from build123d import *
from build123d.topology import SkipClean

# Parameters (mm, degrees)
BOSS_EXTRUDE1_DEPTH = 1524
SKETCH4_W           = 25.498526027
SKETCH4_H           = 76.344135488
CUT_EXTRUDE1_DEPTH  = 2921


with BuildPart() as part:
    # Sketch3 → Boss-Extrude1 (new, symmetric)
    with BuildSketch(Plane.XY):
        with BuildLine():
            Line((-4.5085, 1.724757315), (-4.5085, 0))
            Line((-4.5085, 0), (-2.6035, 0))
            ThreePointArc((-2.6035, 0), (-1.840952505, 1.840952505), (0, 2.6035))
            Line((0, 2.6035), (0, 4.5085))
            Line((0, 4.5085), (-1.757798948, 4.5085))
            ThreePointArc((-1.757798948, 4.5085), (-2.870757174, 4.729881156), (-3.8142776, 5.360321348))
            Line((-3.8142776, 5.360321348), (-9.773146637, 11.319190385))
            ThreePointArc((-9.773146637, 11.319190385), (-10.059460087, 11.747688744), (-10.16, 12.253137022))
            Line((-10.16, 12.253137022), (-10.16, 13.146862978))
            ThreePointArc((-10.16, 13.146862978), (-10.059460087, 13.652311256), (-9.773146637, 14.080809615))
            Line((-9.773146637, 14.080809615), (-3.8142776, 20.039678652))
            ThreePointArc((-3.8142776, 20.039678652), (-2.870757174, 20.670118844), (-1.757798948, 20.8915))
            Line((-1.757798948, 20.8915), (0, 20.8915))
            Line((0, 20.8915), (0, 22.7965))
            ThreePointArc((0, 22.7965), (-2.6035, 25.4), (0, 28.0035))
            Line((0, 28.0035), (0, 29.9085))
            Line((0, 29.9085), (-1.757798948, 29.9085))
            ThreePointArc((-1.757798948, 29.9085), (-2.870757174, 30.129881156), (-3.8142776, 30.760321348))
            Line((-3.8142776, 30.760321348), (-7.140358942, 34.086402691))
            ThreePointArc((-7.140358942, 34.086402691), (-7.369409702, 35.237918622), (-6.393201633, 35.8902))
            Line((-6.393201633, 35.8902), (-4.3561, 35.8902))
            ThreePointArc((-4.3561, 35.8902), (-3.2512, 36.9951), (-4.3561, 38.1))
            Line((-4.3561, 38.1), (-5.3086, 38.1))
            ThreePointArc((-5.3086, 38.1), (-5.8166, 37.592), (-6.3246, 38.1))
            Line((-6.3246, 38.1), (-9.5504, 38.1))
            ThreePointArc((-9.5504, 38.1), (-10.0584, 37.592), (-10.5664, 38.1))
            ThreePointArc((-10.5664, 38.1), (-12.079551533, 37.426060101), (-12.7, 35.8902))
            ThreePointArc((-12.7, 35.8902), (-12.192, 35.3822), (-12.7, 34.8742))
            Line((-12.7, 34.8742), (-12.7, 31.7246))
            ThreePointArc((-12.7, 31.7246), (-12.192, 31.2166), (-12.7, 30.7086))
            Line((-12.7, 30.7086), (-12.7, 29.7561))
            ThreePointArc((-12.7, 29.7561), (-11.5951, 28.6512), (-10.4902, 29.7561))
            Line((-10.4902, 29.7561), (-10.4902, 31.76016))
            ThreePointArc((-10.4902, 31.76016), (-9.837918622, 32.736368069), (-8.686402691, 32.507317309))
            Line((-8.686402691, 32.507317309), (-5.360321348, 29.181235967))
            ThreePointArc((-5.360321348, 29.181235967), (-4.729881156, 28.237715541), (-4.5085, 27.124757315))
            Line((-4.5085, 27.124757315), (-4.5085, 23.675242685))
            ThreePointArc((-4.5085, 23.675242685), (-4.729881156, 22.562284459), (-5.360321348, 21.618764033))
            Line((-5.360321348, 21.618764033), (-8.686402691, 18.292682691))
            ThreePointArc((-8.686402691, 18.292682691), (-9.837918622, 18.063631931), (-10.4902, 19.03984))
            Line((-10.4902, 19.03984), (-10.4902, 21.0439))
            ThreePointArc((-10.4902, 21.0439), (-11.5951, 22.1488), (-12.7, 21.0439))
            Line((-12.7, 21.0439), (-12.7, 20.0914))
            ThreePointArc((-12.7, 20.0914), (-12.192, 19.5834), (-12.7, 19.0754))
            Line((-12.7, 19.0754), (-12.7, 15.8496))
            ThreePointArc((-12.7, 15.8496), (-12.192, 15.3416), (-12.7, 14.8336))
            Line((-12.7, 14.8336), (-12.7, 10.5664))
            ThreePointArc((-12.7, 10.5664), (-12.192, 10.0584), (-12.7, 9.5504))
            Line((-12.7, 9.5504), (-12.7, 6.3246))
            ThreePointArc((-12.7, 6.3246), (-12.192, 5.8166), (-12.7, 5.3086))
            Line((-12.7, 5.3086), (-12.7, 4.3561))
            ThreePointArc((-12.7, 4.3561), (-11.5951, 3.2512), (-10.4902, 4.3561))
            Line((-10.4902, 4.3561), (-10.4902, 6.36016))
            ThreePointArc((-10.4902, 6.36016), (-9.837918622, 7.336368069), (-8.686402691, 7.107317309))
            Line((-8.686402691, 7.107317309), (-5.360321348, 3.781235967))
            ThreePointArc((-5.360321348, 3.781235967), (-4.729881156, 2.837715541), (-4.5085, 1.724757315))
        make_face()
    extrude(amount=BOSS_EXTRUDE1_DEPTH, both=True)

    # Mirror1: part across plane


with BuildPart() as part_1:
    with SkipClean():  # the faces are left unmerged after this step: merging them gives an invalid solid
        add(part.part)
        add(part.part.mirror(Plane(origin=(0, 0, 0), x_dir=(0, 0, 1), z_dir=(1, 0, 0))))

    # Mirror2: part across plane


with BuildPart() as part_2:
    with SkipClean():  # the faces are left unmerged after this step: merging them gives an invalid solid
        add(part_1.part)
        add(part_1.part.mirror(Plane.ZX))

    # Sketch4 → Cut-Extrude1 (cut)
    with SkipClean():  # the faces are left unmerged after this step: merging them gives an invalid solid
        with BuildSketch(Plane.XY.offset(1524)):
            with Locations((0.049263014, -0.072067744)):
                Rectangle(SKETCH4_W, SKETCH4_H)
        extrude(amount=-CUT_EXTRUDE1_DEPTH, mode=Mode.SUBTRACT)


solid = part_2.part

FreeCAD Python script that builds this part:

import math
import FreeCAD as App
import Part
import Sketcher
Q = App.Units.Quantity


def add_polygon(sketch, points):
    """Adds a closed chain of lines whose ends are joined by coincident constraints."""
    first, n = sketch.GeometryCount, len(points)
    for a, b in zip(points, points[1:] + points[:1]):
        sketch.addGeometry(Part.LineSegment(App.Vector(*a, 0), App.Vector(*b, 0)), False)
    for i in range(n):
        sketch.addConstraint(Sketcher.Constraint("Coincident", first + i, 2, first + (i + 1) % n, 1))

doc = App.newDocument("Part")
body = doc.addObject("PartDesign::Body", "Body")

sketch1 = body.newObject("Sketcher::SketchObject", "Sketch")
sketch1.AttachmentSupport = (doc.getObject("XY_Plane"), [""])
sketch1.MapMode = "FlatFace"
sketch1.addGeometry([
    Part.LineSegment(App.Vector(-4.5, 1.7, 0), App.Vector(-4.5, 0, 0)),
    Part.LineSegment(App.Vector(-4.5, 0, 0), App.Vector(-2.6, 0, 0)),
    Part.ArcOfCircle(Part.Circle(App.Vector(0, 0, 0), App.Vector(0, 0, 1), 2.6), math.radians(90), math.radians(180)),
    Part.LineSegment(App.Vector(0, 2.6, 0), App.Vector(0, 4.5, 0)),
    Part.LineSegment(App.Vector(0, 4.5, 0), App.Vector(-1.8, 4.5, 0)),
    Part.ArcOfCircle(Part.Circle(App.Vector(-1.8, 7.4, 0), App.Vector(0, 0, 1), 2.9), math.radians(-135), math.radians(-90)),
    Part.LineSegment(App.Vector(-3.8, 5.4, 0), App.Vector(-9.8, 11.3, 0)),
    Part.ArcOfCircle(Part.Circle(App.Vector(-8.8, 12.3, 0), App.Vector(0, 0, 1), 1.3), math.radians(180), math.radians(225)),
    Part.LineSegment(App.Vector(-10.2, 12.3, 0), App.Vector(-10.2, 13.1, 0)),
    Part.ArcOfCircle(Part.Circle(App.Vector(-8.8, 13.1, 0), App.Vector(0, 0, 1), 1.3), math.radians(135), math.radians(180)),
    Part.LineSegment(App.Vector(-9.8, 14.1, 0), App.Vector(-3.8, 20, 0)),
    Part.ArcOfCircle(Part.Circle(App.Vector(-1.8, 18, 0), App.Vector(0, 0, 1), 2.9), math.radians(90), math.radians(135)),
    Part.LineSegment(App.Vector(-1.8, 20.9, 0), App.Vector(0, 20.9, 0)),
    Part.LineSegment(App.Vector(0, 20.9, 0), App.Vector(0, 22.8, 0)),
    Part.ArcOfCircle(Part.Circle(App.Vector(0, 25.4, 0), App.Vector(0, 0, 1), 2.6), math.radians(90), math.radians(270)),
    Part.LineSegment(App.Vector(0, 28, 0), App.Vector(0, 29.9, 0)),
    Part.LineSegment(App.Vector(0, 29.9, 0), App.Vector(-1.8, 29.9, 0)),
    Part.ArcOfCircle(Part.Circle(App.Vector(-1.8, 32.8, 0), App.Vector(0, 0, 1), 2.9), math.radians(-135), math.radians(-90)),
    Part.LineSegment(App.Vector(-3.8, 30.8, 0), App.Vector(-7.1, 34.1, 0)),
    Part.ArcOfCircle(Part.Circle(App.Vector(-6.4, 34.8, 0), App.Vector(0, 0, 1), 1.1), math.radians(90), math.radians(225)),
    Part.LineSegment(App.Vector(-6.4, 35.9, 0), App.Vector(-4.4, 35.9, 0)),
    Part.ArcOfCircle(Part.Circle(App.Vector(-4.4, 37, 0), App.Vector(0, 0, 1), 1.1), math.radians(-90), math.radians(90)),
    Part.LineSegment(App.Vector(-4.4, 38.1, 0), App.Vector(-5.3, 38.1, 0)),
    Part.ArcOfCircle(Part.Circle(App.Vector(-5.8, 38.1, 0), App.Vector(0, 0, 1), 0.5), math.radians(180), math.radians(360)),
    Part.LineSegment(App.Vector(-6.3, 38.1, 0), App.Vector(-9.6, 38.1, 0)),
    Part.ArcOfCircle(Part.Circle(App.Vector(-10.1, 38.1, 0), App.Vector(0, 0, 1), 0.5), math.radians(180), math.radians(360)),
    Part.ArcOfCircle(Part.Circle(App.Vector(-10.5, 35.9, 0), App.Vector(0, 0, 1), 2.2), math.radians(92), math.radians(180)),
    Part.ArcOfCircle(Part.Circle(App.Vector(-12.7, 35.4, 0), App.Vector(0, 0, 1), 0.5), math.radians(-90), math.radians(90)),
    Part.LineSegment(App.Vector(-12.7, 34.9, 0), App.Vector(-12.7, 31.7, 0)),
    Part.ArcOfCircle(Part.Circle(App.Vector(-12.7, 31.2, 0), App.Vector(0, 0, 1), 0.5), math.radians(-90), math.radians(90)),
    Part.LineSegment(App.Vector(-12.7, 30.7, 0), App.Vector(-12.7, 29.8, 0)),
    Part.ArcOfCircle(Part.Circle(App.Vector(-11.6, 29.8, 0), App.Vector(0, 0, 1), 1.1), math.radians(180), math.radians(360)),
    Part.LineSegment(App.Vector(-10.5, 29.8, 0), App.Vector(-10.5, 31.8, 0)),
    Part.ArcOfCircle(Part.Circle(App.Vector(-9.4, 31.8, 0), App.Vector(0, 0, 1), 1.1), math.radians(45), math.radians(180)),
    Part.LineSegment(App.Vector(-8.7, 32.5, 0), App.Vector(-5.4, 29.2, 0)),
    Part.ArcOfCircle(Part.Circle(App.Vector(-7.4, 27.1, 0), App.Vector(0, 0, 1), 2.9), math.radians(0), math.radians(45)),
    Part.LineSegment(App.Vector(-4.5, 27.1, 0), App.Vector(-4.5, 23.7, 0)),
    Part.ArcOfCircle(Part.Circle(App.Vector(-7.4, 23.7, 0), App.Vector(0, 0, 1), 2.9), math.radians(-45), math.radians(0)),
    Part.LineSegment(App.Vector(-5.4, 21.6, 0), App.Vector(-8.7, 18.3, 0)),
    Part.ArcOfCircle(Part.Circle(App.Vector(-9.4, 19, 0), App.Vector(0, 0, 1), 1.1), math.radians(180), math.radians(315)),
    Part.LineSegment(App.Vector(-10.5, 19, 0), App.Vector(-10.5, 21, 0)),
    Part.ArcOfCircle(Part.Circle(App.Vector(-11.6, 21, 0), App.Vector(0, 0, 1), 1.1), math.radians(0), math.radians(180)),
    Part.LineSegment(App.Vector(-12.7, 21, 0), App.Vector(-12.7, 20.1, 0)),
    Part.ArcOfCircle(Part.Circle(App.Vector(-12.7, 19.6, 0), App.Vector(0, 0, 1), 0.5), math.radians(-90), math.radians(90)),
    Part.LineSegment(App.Vector(-12.7, 19.1, 0), App.Vector(-12.7, 15.8, 0)),
    Part.ArcOfCircle(Part.Circle(App.Vector(-12.7, 15.3, 0), App.Vector(0, 0, 1), 0.5), math.radians(-90), math.radians(90)),
    Part.LineSegment(App.Vector(-12.7, 14.8, 0), App.Vector(-12.7, 10.6, 0)),
    Part.ArcOfCircle(Part.Circle(App.Vector(-12.7, 10.1, 0), App.Vector(0, 0, 1), 0.5), math.radians(-90), math.radians(90)),
    Part.LineSegment(App.Vector(-12.7, 9.6, 0), App.Vector(-12.7, 6.3, 0)),
    Part.ArcOfCircle(Part.Circle(App.Vector(-12.7, 5.8, 0), App.Vector(0, 0, 1), 0.5), math.radians(-90), math.radians(90)),
    Part.LineSegment(App.Vector(-12.7, 5.3, 0), App.Vector(-12.7, 4.4, 0)),
    Part.ArcOfCircle(Part.Circle(App.Vector(-11.6, 4.4, 0), App.Vector(0, 0, 1), 1.1), math.radians(180), math.radians(360)),
    Part.LineSegment(App.Vector(-10.5, 4.4, 0), App.Vector(-10.5, 6.4, 0)),
    Part.ArcOfCircle(Part.Circle(App.Vector(-9.4, 6.4, 0), App.Vector(0, 0, 1), 1.1), math.radians(45), math.radians(180)),
    Part.LineSegment(App.Vector(-8.7, 7.1, 0), App.Vector(-5.4, 3.8, 0)),
    Part.ArcOfCircle(Part.Circle(App.Vector(-7.4, 1.7, 0), App.Vector(0, 0, 1), 2.9), math.radians(0), math.radians(45)),
], False)
sketch1.addConstraint([
    Sketcher.Constraint("Coincident", 0, 2, 1, 1),
    Sketcher.Constraint("Coincident", 1, 2, 2, 2),
    Sketcher.Constraint("Coincident", 2, 1, 3, 1),
    Sketcher.Constraint("Coincident", 3, 2, 4, 1),
    Sketcher.Constraint("Tangent", 4, 2, 5, 2),
    Sketcher.Constraint("Tangent", 5, 1, 6, 1),
    Sketcher.Constraint("Tangent", 6, 2, 7, 2),
    Sketcher.Constraint("Tangent", 7, 1, 8, 1),
    Sketcher.Constraint("Tangent", 8, 2, 9, 2),
    Sketcher.Constraint("Tangent", 9, 1, 10, 1),
    Sketcher.Constraint("Tangent", 10, 2, 11, 2),
    Sketcher.Constraint("Tangent", 11, 1, 12, 1),
    Sketcher.Constraint("Coincident", 12, 2, 13, 1),
    Sketcher.Constraint("Coincident", 13, 2, 14, 2),
    Sketcher.Constraint("Coincident", 14, 1, 15, 1),
    Sketcher.Constraint("Coincident", 15, 2, 16, 1),
    Sketcher.Constraint("Tangent", 16, 2, 17, 2),
    Sketcher.Constraint("Tangent", 17, 1, 18, 1),
    Sketcher.Constraint("Tangent", 18, 2, 19, 2),
    Sketcher.Constraint("Tangent", 19, 1, 20, 1),
    Sketcher.Constraint("Tangent", 20, 2, 21, 1),
    Sketcher.Constraint("Tangent", 21, 2, 22, 1),
    Sketcher.Constraint("Coincident", 22, 2, 23, 2),
    Sketcher.Constraint("Coincident", 23, 1, 24, 1),
    Sketcher.Constraint("Coincident", 24, 2, 25, 2),
    Sketcher.Constraint("Coincident", 25, 1, 26, 1),
    Sketcher.Constraint("Coincident", 26, 2, 27, 2),
    Sketcher.Constraint("Coincident", 27, 1, 28, 1),
    Sketcher.Constraint("Coincident", 28, 2, 29, 2),
    Sketcher.Constraint("Coincident", 29, 1, 30, 1),
    Sketcher.Constraint("Tangent", 30, 2, 31, 1),
    Sketcher.Constraint("Tangent", 31, 2, 32, 1),
    Sketcher.Constraint("Tangent", 32, 2, 33, 2),
    Sketcher.Constraint("Tangent", 33, 1, 34, 1),
    Sketcher.Constraint("Tangent", 34, 2, 35, 2),
    Sketcher.Constraint("Tangent", 35, 1, 36, 1),
    Sketcher.Constraint("Tangent", 36, 2, 37, 2),
    Sketcher.Constraint("Tangent", 37, 1, 38, 1),
    Sketcher.Constraint("Tangent", 38, 2, 39, 2),
    Sketcher.Constraint("Tangent", 39, 1, 40, 1),
    Sketcher.Constraint("Tangent", 40, 2, 41, 1),
    Sketcher.Constraint("Tangent", 41, 2, 42, 1),
    Sketcher.Constraint("Coincident", 42, 2, 43, 2),
    Sketcher.Constraint("Coincident", 43, 1, 44, 1),
    Sketcher.Constraint("Coincident", 44, 2, 45, 2),
    Sketcher.Constraint("Coincident", 45, 1, 46, 1),
    Sketcher.Constraint("Coincident", 46, 2, 47, 2),
    Sketcher.Constraint("Coincident", 47, 1, 48, 1),
    Sketcher.Constraint("Coincident", 48, 2, 49, 2),
    Sketcher.Constraint("Coincident", 49, 1, 50, 1),
    Sketcher.Constraint("Tangent", 50, 2, 51, 1),
    Sketcher.Constraint("Tangent", 51, 2, 52, 1),
    Sketcher.Constraint("Tangent", 52, 2, 53, 2),
    Sketcher.Constraint("Tangent", 53, 1, 54, 1),
    Sketcher.Constraint("Tangent", 54, 2, 55, 2),
    Sketcher.Constraint("Tangent", 55, 1, 0, 1),
    Sketcher.Constraint("Vertical", 0),
    Sketcher.Constraint("Horizontal", 1),
    Sketcher.Constraint("Vertical", 3),
    Sketcher.Constraint("Horizontal", 4),
    Sketcher.Constraint("Vertical", 8),
    Sketcher.Constraint("Horizontal", 12),
    Sketcher.Constraint("Vertical", 13),
    Sketcher.Constraint("Vertical", 15),
    Sketcher.Constraint("Horizontal", 16),
    Sketcher.Constraint("Horizontal", 20),
    Sketcher.Constraint("Horizontal", 22),
    Sketcher.Constraint("Horizontal", 24),
    Sketcher.Constraint("Vertical", 28),
    Sketcher.Constraint("Vertical", 30),
    Sketcher.Constraint("Vertical", 32),
    Sketcher.Constraint("Vertical", 36),
    Sketcher.Constraint("Vertical", 40),
    Sketcher.Constraint("Vertical", 42),
    Sketcher.Constraint("Vertical", 44),
    Sketcher.Constraint("Vertical", 46),
    Sketcher.Constraint("Vertical", 48),
    Sketcher.Constraint("Vertical", 50),
    Sketcher.Constraint("Vertical", 52),
    Sketcher.Constraint("Coincident", 2, 3, -1, 1),
    Sketcher.Constraint("Equal", 7, 9),
    Sketcher.Constraint("Equal", 5, 11),
    Sketcher.Constraint("Equal", 2, 14),
    Sketcher.Constraint("Equal", 11, 17),
    Sketcher.Constraint("Equal", 23, 25),
    Sketcher.Constraint("Equal", 25, 27),
    Sketcher.Constraint("Equal", 27, 29),
    Sketcher.Constraint("Equal", 21, 31),
    Sketcher.Constraint("Equal", 19, 33),
    Sketcher.Constraint("Equal", 17, 35),
    Sketcher.Constraint("Equal", 35, 37),
    Sketcher.Constraint("Equal", 33, 39),
    Sketcher.Constraint("Equal", 31, 41),
    Sketcher.Constraint("Equal", 29, 43),
    Sketcher.Constraint("Equal", 43, 45),
    Sketcher.Constraint("Equal", 45, 47),
    Sketcher.Constraint("Equal", 47, 49),
    Sketcher.Constraint("Equal", 41, 51),
    Sketcher.Constraint("Equal", 39, 53),
    Sketcher.Constraint("Equal", 37, 55),
    Sketcher.Constraint("PointOnObject", 14, 3, -2),
    Sketcher.Constraint("PointOnObject", 0, 2, -1),
    Sketcher.Constraint("PointOnObject", 2, 1, -2),
    Sketcher.Constraint("PointOnObject", 12, 2, -2),
    Sketcher.Constraint("PointOnObject", 14, 1, -2),
    Sketcher.Constraint("Perpendicular", 6, 10),
    Sketcher.Constraint("Perpendicular", 10, 18),
    Sketcher.Constraint("Parallel", 18, 34),
    Sketcher.Constraint("Perpendicular", 34, 38),
    Sketcher.Constraint("Perpendicular", 38, 54),
    Sketcher.Constraint("Horizontal", 23, 3, 25, 3),
    Sketcher.Constraint("Horizontal", 26, 3, 19, 1),
    Sketcher.Constraint("Horizontal", 25, 3, 21, 2),
    Sketcher.Constraint("Horizontal", 22, 2, 23, 1),
    Sketcher.Constraint("Horizontal", 24, 2, 25, 1),
    Sketcher.Constraint("Horizontal", 20, 2, 26, 2),
    Sketcher.Constraint("Vertical", 5, 3, 11, 3),
    Sketcher.Constraint("Vertical", 11, 3, 17, 3),
    Sketcher.Constraint("Vertical", 27, 3, 29, 3),
    Sketcher.Constraint("Vertical", 33, 3, 39, 3),
    Sketcher.Constraint("Vertical", 29, 3, 43, 3),
    Sketcher.Constraint("Vertical", 43, 3, 45, 3),
    Sketcher.Constraint("Vertical", 45, 3, 47, 3),
    Sketcher.Constraint("Vertical", 47, 3, 49, 3),
    Sketcher.Constraint("Vertical", 41, 3, 51, 3),
    Sketcher.Constraint("Vertical", 37, 3, 55, 3),
    Sketcher.Constraint("Vertical", 6, 2, 9, 1),
    Sketcher.Constraint("Vertical", 49, 3, 26, 2),
    Sketcher.Constraint("Vertical", 26, 2, 27, 1),
    Sketcher.Constraint("Vertical", 28, 2, 29, 1),
    Sketcher.Constraint("Vertical", 42, 2, 43, 1),
    Sketcher.Constraint("Vertical", 44, 2, 45, 1),
    Sketcher.Constraint("Vertical", 46, 2, 47, 1),
    Sketcher.Constraint("Equal", 1, 3),
    Sketcher.Constraint("Equal", 3, 13),
    Sketcher.Constraint("Equal", 13, 15),
    Sketcher.Constraint("Equal", 22, 30),
    Sketcher.Constraint("Equal", 32, 40),
    Sketcher.Constraint("Equal", 30, 42),
    Sketcher.Constraint("Equal", 24, 44),
    Sketcher.Constraint("Equal", 44, 48),
    Sketcher.Constraint("Equal", 42, 50),
    Sketcher.Constraint("Equal", 40, 52),
    Sketcher.Constraint("Equal", 18, 34),
    Sketcher.Constraint("Radius", 23, Q("0.02 in")),
    Sketcher.Constraint("DistanceY", -1, 1, 14, 3, Q("1 in")),
    Sketcher.Constraint("Radius", 7, Q("0.052 in")),
    Sketcher.Constraint("DistanceY", -1, 1, 23, 3, Q("1.5 in")),
    Sketcher.Constraint("DistanceX", 7, 1, -1, 1, Q("0.4 in")),
    Sketcher.Constraint("Radius", 2, Q("0.1025 in")),
    Sketcher.Constraint("Radius", 5, Q("0.1145 in")),
    Sketcher.Constraint("Radius", 19, Q("0.0416 in")),
    Sketcher.Constraint("Radius", 21, Q("0.0435 in")),
    Sketcher.Constraint("DistanceX", 1, 1, 1, 2, Q("0.075 in")),
    Sketcher.Constraint("DistanceX", 24, 2, 24, 1, Q("0.127 in")),
    Sketcher.Constraint("DistanceY", 28, 2, 28, 1, Q("0.124 in")),
    Sketcher.Constraint("DistanceY", 46, 2, 46, 1, Q("0.168 in")),
    Sketcher.Constraint("DistanceX", 22, 2, 22, 1, Q("0.0375 in")),
    Sketcher.Constraint("DistanceY", 32, 1, 32, 2, Q("0.0789 in")),
    Sketcher.Constraint("DistanceX", 23, 3, -1, 1, Q("0.229 in")),
    Sketcher.Constraint("DistanceY", -1, 1, 43, 3, Q("0.771 in")),
    Sketcher.Constraint("DistanceX", 4, 2, 4, 1, Q("1.757799 mm")),
])
pad1 = body.newObject("PartDesign::Pad", "Pad")
pad1.Profile = sketch1
pad1.Length = Q("120 in")
pad1.Midplane = True
body2 = doc.addObject("PartDesign::Body", "Body001")
doc.recompute()

body2.BaseFeature = body
doc.recompute()

mirroring = doc.addObject("Part::Mirroring", "Mirroring")
mirroring.Source = body
mirroring.Base = App.Vector(0, 0, 0)
mirroring.Normal = App.Vector(1, 0, 0)
body3 = doc.addObject("PartDesign::Body", "Body002")
body3.BaseFeature = mirroring
boolean = body2.newObject("PartDesign::Boolean", "Boolean")
boolean.Type = "Fuse"
boolean.addObjects([body3])
doc.recompute()
body4 = doc.addObject("PartDesign::Body", "Body003")
doc.recompute()

body4.BaseFeature = body2
doc.recompute()

mirroring2 = doc.addObject("Part::Mirroring", "Mirroring001")
mirroring2.Source = body2
mirroring2.Base = App.Vector(0, 0, 0)
mirroring2.Normal = App.Vector(0, 1, 0)
body5 = doc.addObject("PartDesign::Body", "Body004")
body5.BaseFeature = mirroring2
boolean2 = body4.newObject("PartDesign::Boolean", "Boolean001")
boolean2.Type = "Fuse"
boolean2.addObjects([body5])
doc.recompute()

sketch2 = body4.newObject("Sketcher::SketchObject", "Sketch001")
sketch2.AttachmentSupport = (doc.getObject("XY_Plane003"), [""])
sketch2.MapMode = "FlatFace"
sketch2.AttachmentOffset = App.Placement(App.Vector(0, 0, 60 * 25.4), App.Rotation())
add_polygon(sketch2, [(-13, 38), (-13, -38), (13, -38), (13, 38)])
sketch2.addConstraint([
    Sketcher.Constraint("Vertical", 0),
    Sketcher.Constraint("Horizontal", 1),
    Sketcher.Constraint("Vertical", 2),
    Sketcher.Constraint("Horizontal", 3),
    Sketcher.Constraint("DistanceX", 0, 2, -1, 1, Q("0.5 in")),
    Sketcher.Constraint("DistanceY", -1, 1, 2, 2, Q("1.5 in")),
    Sketcher.Constraint("DistanceX", 1, 1, 1, 2, Q("25.498526 mm")),
    Sketcher.Constraint("DistanceY", 0, 2, 0, 1, Q("76.344135 mm")),
])
pocket1 = body4.newObject("PartDesign::Pocket", "Pocket")
pocket1.Profile = sketch2
pocket1.Length = Q("115 in")
mirroring.Visibility = False
mirroring2.Visibility = False

doc.recompute()
